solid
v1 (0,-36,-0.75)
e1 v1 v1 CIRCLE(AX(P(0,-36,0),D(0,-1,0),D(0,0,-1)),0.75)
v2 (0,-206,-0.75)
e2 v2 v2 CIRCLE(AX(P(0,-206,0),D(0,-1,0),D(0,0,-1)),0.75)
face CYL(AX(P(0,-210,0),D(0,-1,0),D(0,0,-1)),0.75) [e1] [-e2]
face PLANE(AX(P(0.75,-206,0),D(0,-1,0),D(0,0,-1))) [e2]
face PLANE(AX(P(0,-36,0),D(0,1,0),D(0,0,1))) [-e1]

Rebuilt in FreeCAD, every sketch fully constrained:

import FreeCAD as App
import Part
import Sketcher
from FreeCAD import Vector

doc = App.newDocument("Part")
body = doc.addObject("PartDesign::Body", "Body")

sketch1 = body.newObject("Sketcher::SketchObject", "Sketch")
sketch1.AttachmentSupport = (doc.getObject("XY_Plane"), [""])
sketch1.MapMode = "FlatFace"
sketch1.addGeometry(Part.LineSegment(Vector(0, -36, 0), Vector(0, -206, 0)), False)
sketch1.addGeometry(Part.LineSegment(Vector(0, -206, 0), Vector(0.75, -206, 0)), False)
sketch1.addGeometry(Part.LineSegment(Vector(0.75, -206, 0), Vector(0.75, -36, 0)), False)
sketch1.addGeometry(Part.LineSegment(Vector(0.75, -36, 0), Vector(0, -36, 0)), False)
sketch1.addConstraint(Sketcher.Constraint("Coincident", 0, 2, 1, 1))
sketch1.addConstraint(Sketcher.Constraint("Coincident", 1, 2, 2, 1))
sketch1.addConstraint(Sketcher.Constraint("Coincident", 2, 2, 3, 1))
sketch1.addConstraint(Sketcher.Constraint("Coincident", 3, 2, 0, 1))
sketch1.addConstraint(Sketcher.Constraint("Vertical", 0))
sketch1.addConstraint(Sketcher.Constraint("Horizontal", 1))
sketch1.addConstraint(Sketcher.Constraint("Vertical", 2))
sketch1.addConstraint(Sketcher.Constraint("Horizontal", 3))
sketch1.addConstraint(Sketcher.Constraint("PointOnObject", 0, 2, -2))
sketch1.addConstraint(Sketcher.Constraint("DistanceY", 0, 2, 0, 1, 170.0))
sketch1.addConstraint(Sketcher.Constraint("DistanceY", 0, 2, -1, 1, 206.0))
sketch1.addConstraint(Sketcher.Constraint("DistanceX", 1, 1, 1, 2, 0.75))
revolution = body.newObject("PartDesign::Revolution", "Revolution")
revolution.Profile = sketch1
revolution.ReferenceAxis = (sketch1, ["V_Axis"])
revolution.Angle = 360

doc.recompute()
